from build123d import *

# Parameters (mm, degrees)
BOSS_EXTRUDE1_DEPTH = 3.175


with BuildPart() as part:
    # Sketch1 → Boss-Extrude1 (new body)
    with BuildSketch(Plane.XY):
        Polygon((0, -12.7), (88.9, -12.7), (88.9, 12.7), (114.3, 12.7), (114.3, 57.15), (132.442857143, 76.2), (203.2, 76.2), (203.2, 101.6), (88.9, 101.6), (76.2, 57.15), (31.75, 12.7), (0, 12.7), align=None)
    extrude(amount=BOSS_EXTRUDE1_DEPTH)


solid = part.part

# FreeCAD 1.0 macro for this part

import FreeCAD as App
import Part
import Sketcher
Q = App.Units.Quantity

doc = App.newDocument("Part")
body = doc.addObject("PartDesign::Body", "Body")

# Sketch on XY plane
sketch1 = body.newObject("Sketcher::SketchObject", "Sketch")
sketch1.AttachmentSupport = (doc.getObject("XY_Plane"), [""])
sketch1.MapMode = "FlatFace"
sketch1.addGeometry([
    Part.LineSegment(App.Vector(0, -12.7, 0), App.Vector(88.9, -12.7, 0)),  # 0
    Part.LineSegment(App.Vector(88.9, -12.7, 0), App.Vector(88.9, 12.7, 0)),  # 1
    Part.LineSegment(App.Vector(88.9, 12.7, 0), App.Vector(114.3, 12.7, 0)),  # 2
    Part.LineSegment(App.Vector(114.3, 12.7, 0), App.Vector(114.3, 57.15, 0)),  # 3
    Part.LineSegment(App.Vector(114.3, 57.15, 0), App.Vector(132.442857, 76.2, 0)),  # 4
    Part.LineSegment(App.Vector(132.442857, 76.2, 0), App.Vector(203.2, 76.2, 0)),  # 5
    Part.LineSegment(App.Vector(203.2, 76.2, 0), App.Vector(203.2, 101.6, 0)),  # 6
    Part.LineSegment(App.Vector(203.2, 101.6, 0), App.Vector(88.9, 101.6, 0)),  # 7
    Part.LineSegment(App.Vector(88.9, 101.6, 0), App.Vector(76.2, 57.15, 0)),  # 8
    Part.LineSegment(App.Vector(76.2, 57.15, 0), App.Vector(31.75, 12.7, 0)),  # 9
    Part.LineSegment(App.Vector(31.75, 12.7, 0), App.Vector(0, 12.7, 0)),  # 10
    Part.LineSegment(App.Vector(0, 12.7, 0), App.Vector(0, -12.7, 0)),  # 11
], False)
sketch1.addConstraint([
    Sketcher.Constraint("Coincident", 0, 2, 1, 1),
    Sketcher.Constraint("Coincident", 1, 2, 2, 1),
    Sketcher.Constraint("Coincident", 2, 2, 3, 1),
    Sketcher.Constraint("Coincident", 3, 2, 4, 1),
    Sketcher.Constraint("Coincident", 4, 2, 5, 1),
    Sketcher.Constraint("Coincident", 5, 2, 6, 1),
    Sketcher.Constraint("Coincident", 6, 2, 7, 1),
    Sketcher.Constraint("Coincident", 7, 2, 8, 1),
    Sketcher.Constraint("Coincident", 8, 2, 9, 1),
    Sketcher.Constraint("Coincident", 9, 2, 10, 1),
    Sketcher.Constraint("Coincident", 10, 2, 11, 1),
    Sketcher.Constraint("Coincident", 11, 2, 0, 1),
    Sketcher.Constraint("Horizontal", 0),
    Sketcher.Constraint("Vertical", 1),
    Sketcher.Constraint("Horizontal", 2),
    Sketcher.Constraint("Vertical", 3),
    Sketcher.Constraint("Horizontal", 5),
    Sketcher.Constraint("Vertical", 6),
    Sketcher.Constraint("Horizontal", 7),
    Sketcher.Constraint("Horizontal", 10),
    Sketcher.Constraint("Vertical", 11),
    Sketcher.Constraint("Symmetric", 10, 2, 11, 2, -1, 1),
    Sketcher.Constraint("Horizontal", 3, 2, 8, 2),
    Sketcher.Constraint("Horizontal", 2, 2, 9, 2),
    Sketcher.Constraint("Vertical", 1, 2, 7, 2),
    Sketcher.Constraint("Equal", 2, 1),
    Sketcher.Constraint("Equal", 1, 6),
    Sketcher.Constraint("DistanceX", 2, 1, 2, 2, Q("1 in")),
    Sketcher.Constraint("DistanceX", 0, 1, 0, 2, Q("3.5 in")),
    Sketcher.Constraint("DistanceX", 7, 2, 7, 1, Q("4.5 in")),
    Sketcher.Constraint("DistanceY", -1, 1, 4, 2, Q("3 in")),
    Sketcher.Constraint("DistanceX", -1, 1, 8, 2, Q("3 in")),
    Sketcher.Constraint("Angle", 9, Q("-135 deg")),
    Sketcher.Constraint("DistanceX", 10, 2, 10, 1, Q("1.25 in")),
    Sketcher.Constraint("DistanceX", 5, 1, 5, 2, 70.757143),
])
pad1 = body.newObject("PartDesign::Pad", "Pad")
pad1.Profile = sketch1
pad1.Length = Q("0.125 in")

doc.recompute()
